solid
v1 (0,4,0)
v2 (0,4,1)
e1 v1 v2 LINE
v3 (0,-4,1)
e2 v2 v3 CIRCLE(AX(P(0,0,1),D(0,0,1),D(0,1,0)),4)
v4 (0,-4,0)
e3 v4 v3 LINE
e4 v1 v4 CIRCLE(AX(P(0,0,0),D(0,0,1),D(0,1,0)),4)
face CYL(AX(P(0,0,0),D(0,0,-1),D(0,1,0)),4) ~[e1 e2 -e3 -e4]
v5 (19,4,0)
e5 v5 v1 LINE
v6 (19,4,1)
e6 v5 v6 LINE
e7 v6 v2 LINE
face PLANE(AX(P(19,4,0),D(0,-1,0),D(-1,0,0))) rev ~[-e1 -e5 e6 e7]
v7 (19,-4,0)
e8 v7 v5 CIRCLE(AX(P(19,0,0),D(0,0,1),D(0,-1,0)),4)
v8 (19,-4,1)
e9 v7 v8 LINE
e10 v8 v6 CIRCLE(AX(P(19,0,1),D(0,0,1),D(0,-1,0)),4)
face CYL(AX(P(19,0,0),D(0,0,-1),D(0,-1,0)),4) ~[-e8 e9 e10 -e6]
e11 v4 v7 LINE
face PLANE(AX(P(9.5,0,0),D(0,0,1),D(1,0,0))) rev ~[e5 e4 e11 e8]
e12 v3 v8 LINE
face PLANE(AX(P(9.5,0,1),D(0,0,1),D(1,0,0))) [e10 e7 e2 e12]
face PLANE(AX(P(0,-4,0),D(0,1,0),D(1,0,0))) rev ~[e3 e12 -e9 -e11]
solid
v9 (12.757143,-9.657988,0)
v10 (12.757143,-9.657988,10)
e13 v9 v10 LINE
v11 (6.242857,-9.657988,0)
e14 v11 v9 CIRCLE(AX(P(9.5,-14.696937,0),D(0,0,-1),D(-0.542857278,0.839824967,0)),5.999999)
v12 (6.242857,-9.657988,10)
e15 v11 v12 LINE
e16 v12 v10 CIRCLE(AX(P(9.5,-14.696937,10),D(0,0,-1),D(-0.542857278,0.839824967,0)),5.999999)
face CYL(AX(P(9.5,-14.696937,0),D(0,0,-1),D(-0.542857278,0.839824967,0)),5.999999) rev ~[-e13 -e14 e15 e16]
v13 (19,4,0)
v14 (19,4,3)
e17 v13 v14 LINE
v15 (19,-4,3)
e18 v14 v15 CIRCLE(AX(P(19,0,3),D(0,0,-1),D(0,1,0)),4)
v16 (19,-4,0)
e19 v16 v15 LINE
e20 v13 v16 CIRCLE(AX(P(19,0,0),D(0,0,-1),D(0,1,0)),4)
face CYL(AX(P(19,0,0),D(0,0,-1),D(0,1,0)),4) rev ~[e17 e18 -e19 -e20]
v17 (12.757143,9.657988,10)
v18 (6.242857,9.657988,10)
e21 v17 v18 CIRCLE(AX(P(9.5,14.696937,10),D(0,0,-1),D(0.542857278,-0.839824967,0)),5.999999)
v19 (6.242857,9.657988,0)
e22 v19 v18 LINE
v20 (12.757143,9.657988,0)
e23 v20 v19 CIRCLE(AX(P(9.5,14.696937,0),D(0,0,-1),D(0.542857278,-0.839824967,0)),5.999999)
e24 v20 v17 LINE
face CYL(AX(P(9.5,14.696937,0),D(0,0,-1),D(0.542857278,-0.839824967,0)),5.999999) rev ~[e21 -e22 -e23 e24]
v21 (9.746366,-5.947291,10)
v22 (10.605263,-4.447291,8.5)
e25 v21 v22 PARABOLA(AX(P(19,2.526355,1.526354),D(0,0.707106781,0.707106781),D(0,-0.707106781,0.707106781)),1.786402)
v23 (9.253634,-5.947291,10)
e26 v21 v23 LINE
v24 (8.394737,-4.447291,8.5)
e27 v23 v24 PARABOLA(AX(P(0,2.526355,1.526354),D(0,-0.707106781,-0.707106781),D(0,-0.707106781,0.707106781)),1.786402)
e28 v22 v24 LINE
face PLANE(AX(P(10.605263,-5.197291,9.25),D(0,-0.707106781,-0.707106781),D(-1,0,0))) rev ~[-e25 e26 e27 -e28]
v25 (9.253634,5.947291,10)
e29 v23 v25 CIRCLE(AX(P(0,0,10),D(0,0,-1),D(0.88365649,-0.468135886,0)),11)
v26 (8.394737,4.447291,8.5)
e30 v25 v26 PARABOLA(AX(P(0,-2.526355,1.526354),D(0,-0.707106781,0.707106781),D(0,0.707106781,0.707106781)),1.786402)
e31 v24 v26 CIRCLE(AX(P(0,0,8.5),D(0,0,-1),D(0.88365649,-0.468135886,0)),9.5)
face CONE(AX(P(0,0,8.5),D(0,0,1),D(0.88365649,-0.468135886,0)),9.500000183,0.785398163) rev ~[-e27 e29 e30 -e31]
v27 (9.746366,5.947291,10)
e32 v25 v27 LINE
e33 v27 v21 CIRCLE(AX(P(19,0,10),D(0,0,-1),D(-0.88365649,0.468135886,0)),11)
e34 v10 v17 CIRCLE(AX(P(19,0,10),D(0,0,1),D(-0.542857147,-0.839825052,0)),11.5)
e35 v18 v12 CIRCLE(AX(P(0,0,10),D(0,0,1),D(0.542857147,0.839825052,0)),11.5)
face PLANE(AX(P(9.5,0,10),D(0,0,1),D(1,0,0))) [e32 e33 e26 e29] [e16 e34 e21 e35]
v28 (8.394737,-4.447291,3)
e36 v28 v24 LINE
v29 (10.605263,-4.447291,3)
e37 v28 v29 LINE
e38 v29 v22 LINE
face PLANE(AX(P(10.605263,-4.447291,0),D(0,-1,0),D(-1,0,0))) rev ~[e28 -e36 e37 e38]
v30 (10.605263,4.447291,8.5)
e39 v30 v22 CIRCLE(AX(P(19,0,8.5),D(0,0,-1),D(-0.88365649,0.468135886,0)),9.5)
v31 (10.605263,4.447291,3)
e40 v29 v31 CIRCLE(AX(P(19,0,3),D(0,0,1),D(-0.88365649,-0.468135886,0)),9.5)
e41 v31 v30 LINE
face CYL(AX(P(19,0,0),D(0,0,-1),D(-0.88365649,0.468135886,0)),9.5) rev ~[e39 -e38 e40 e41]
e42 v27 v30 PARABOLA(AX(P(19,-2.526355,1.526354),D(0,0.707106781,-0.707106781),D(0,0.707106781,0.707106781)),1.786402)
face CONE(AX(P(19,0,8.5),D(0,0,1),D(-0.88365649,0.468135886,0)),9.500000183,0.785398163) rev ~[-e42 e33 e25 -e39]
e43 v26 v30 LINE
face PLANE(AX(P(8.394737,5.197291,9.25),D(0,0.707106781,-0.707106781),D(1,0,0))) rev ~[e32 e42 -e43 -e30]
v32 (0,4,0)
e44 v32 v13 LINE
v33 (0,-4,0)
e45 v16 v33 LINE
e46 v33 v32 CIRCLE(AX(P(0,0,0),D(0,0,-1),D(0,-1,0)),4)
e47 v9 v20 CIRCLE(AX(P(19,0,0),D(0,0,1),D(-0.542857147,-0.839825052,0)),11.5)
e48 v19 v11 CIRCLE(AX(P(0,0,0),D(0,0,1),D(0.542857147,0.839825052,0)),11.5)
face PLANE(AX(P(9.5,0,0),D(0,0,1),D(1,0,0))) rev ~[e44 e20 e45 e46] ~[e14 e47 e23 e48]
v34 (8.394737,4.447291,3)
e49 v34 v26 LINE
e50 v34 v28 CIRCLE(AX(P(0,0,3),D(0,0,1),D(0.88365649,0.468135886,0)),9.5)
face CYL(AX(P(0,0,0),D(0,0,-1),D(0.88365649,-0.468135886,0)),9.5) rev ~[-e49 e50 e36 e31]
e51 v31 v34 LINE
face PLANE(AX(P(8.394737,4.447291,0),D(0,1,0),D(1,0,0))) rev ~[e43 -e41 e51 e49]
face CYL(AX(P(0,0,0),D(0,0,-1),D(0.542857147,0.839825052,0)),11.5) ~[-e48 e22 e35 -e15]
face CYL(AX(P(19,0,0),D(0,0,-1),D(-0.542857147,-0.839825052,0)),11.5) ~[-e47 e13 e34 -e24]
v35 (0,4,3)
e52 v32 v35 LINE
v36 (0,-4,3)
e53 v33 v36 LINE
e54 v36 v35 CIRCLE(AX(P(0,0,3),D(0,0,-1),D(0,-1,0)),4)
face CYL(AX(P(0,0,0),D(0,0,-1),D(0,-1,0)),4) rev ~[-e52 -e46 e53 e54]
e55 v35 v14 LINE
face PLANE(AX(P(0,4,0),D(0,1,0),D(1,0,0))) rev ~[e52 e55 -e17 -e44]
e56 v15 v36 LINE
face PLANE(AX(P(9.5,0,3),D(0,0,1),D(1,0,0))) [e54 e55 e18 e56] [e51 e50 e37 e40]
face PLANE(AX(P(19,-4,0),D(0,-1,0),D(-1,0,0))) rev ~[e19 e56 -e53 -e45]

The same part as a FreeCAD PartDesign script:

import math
import FreeCAD as App
import Part
import Sketcher
from FreeCAD import Vector


def edges_at(feature, points):
    """Names of the edges that pass closest to the given points."""
    edges = feature.Shape.Edges
    near = lambda p: min(range(len(edges)), key=lambda i: edges[i].distToShape(Part.Vertex(*p))[0])
    return sorted({f"Edge{near(p) + 1}" for p in points})

doc = App.newDocument("Part")
body = doc.addObject("PartDesign::Body", "Body")

sketch1 = body.newObject("Sketcher::SketchObject", "Sketch")
sketch1.AttachmentSupport = (doc.getObject("XY_Plane"), [""])
sketch1.MapMode = "FlatFace"
sketch1.addGeometry(Part.LineSegment(Vector(19, 4, 0), Vector(0, 4, 0)), False)
sketch1.addGeometry(Part.ArcOfCircle(Part.Circle(Vector(0, 0, 0), Vector(0, 0, 1), 4), math.radians(90), math.radians(270)), False)
sketch1.addGeometry(Part.LineSegment(Vector(0, -4, 0), Vector(19, -4, 0)), False)
sketch1.addGeometry(Part.ArcOfCircle(Part.Circle(Vector(19, 0, 0), Vector(0, 0, 1), 4), math.radians(-90), math.radians(90)), False)
sketch1.addConstraint(Sketcher.Constraint("Tangent", 0, 2, 1, 1))
sketch1.addConstraint(Sketcher.Constraint("Tangent", 1, 2, 2, 1))
sketch1.addConstraint(Sketcher.Constraint("Tangent", 2, 2, 3, 1))
sketch1.addConstraint(Sketcher.Constraint("Tangent", 3, 2, 0, 1))
sketch1.addConstraint(Sketcher.Constraint("Horizontal", 0))
sketch1.addConstraint(Sketcher.Constraint("Horizontal", 2))
sketch1.addConstraint(Sketcher.Constraint("Coincident", 1, 3, -1, 1))
sketch1.addConstraint(Sketcher.Constraint("Radius", 1, 4.0))
sketch1.addConstraint(Sketcher.Constraint("DistanceX", 0, 2, 0, 1, 19.0))
pad1 = body.newObject("PartDesign::Pad", "Pad")
pad1.Profile = sketch1
pad1.Length = 1
body2 = doc.addObject("PartDesign::Body", "Body001")

sketch2 = body2.newObject("Sketcher::SketchObject", "Sketch001")
sketch2.AttachmentSupport = (doc.getObject("XY_Plane001"), [""])
sketch2.MapMode = "FlatFace"
sketch2.addGeometry(Part.LineSegment(Vector(10.605263, 4.447291, 0), Vector(8.394737, 4.447291, 0)), False)
sketch2.addGeometry(Part.ArcOfCircle(Part.Circle(Vector(0, 0, 0), Vector(0, 0, 1), 9.5), math.radians(27.913361), math.radians(332.086639)), False)
sketch2.addGeometry(Part.LineSegment(Vector(8.394737, -4.447291, 0), Vector(10.605263, -4.447291, 0)), False)
sketch2.addGeometry(Part.ArcOfCircle(Part.Circle(Vector(19, 0, 0), Vector(0, 0, 1), 9.5), math.radians(-152.086639), math.radians(152.086639)), False)
sketch2.addGeometry(Part.LineSegment(Vector(19, -4, 0), Vector(0, -4, 0)), False)
sketch2.addGeometry(Part.ArcOfCircle(Part.Circle(Vector(0, 0, 0), Vector(0, 0, 1), 4), math.radians(90), math.radians(270)), False)
sketch2.addGeometry(Part.LineSegment(Vector(0, 4, 0), Vector(19, 4, 0)), False)
sketch2.addGeometry(Part.ArcOfCircle(Part.Circle(Vector(19, 0, 0), Vector(0, 0, 1), 4), math.radians(-90), math.radians(90)), False)
sketch2.addConstraint(Sketcher.Constraint("Coincident", 0, 2, 1, 1))
sketch2.addConstraint(Sketcher.Constraint("Coincident", 1, 2, 2, 1))
sketch2.addConstraint(Sketcher.Constraint("Coincident", 2, 2, 3, 1))
sketch2.addConstraint(Sketcher.Constraint("Coincident", 3, 2, 0, 1))
sketch2.addConstraint(Sketcher.Constraint("Tangent", 4, 2, 5, 2))
sketch2.addConstraint(Sketcher.Constraint("Tangent", 5, 1, 6, 1))
sketch2.addConstraint(Sketcher.Constraint("Tangent", 6, 2, 7, 2))
sketch2.addConstraint(Sketcher.Constraint("Tangent", 7, 1, 4, 1))
sketch2.addConstraint(Sketcher.Constraint("Horizontal", 0))
sketch2.addConstraint(Sketcher.Constraint("Horizontal", 2))
sketch2.addConstraint(Sketcher.Constraint("Horizontal", 4))
sketch2.addConstraint(Sketcher.Constraint("Horizontal", 6))
sketch2.addConstraint(Sketcher.Constraint("Coincident", 1, 3, -1, 1))
sketch2.addConstraint(Sketcher.Constraint("Coincident", 5, 3, -1, 1))
sketch2.addConstraint(Sketcher.Constraint("Coincident", 7, 3, 3, 3))
sketch2.addConstraint(Sketcher.Constraint("Equal", 1, 3))
sketch2.addConstraint(Sketcher.Constraint("Vertical", 0, 2, 1, 2))
sketch2.addConstraint(Sketcher.Constraint("Radius", 5, 4.0))
sketch2.addConstraint(Sketcher.Constraint("Radius", 1, 9.5))
sketch2.addConstraint(Sketcher.Constraint("DistanceX", 4, 2, 4, 1, 19.0))
sketch2.addConstraint(Sketcher.Constraint("DistanceX", 0, 2, 0, 1, 2.210526))
pad2 = body2.newObject("PartDesign::Pad", "Pad001")
pad2.Profile = sketch2
pad2.Length = 3

sketch3 = body2.newObject("Sketcher::SketchObject", "Sketch002")
sketch3.AttachmentSupport = (doc.getObject("XY_Plane001"), [""])
sketch3.MapMode = "FlatFace"
sketch3.addGeometry(Part.ArcOfCircle(Part.Circle(Vector(9.5, 14.696937, 0), Vector(0, 0, 1), 5.999999), math.radians(-122.878359), math.radians(-57.121641)), False)
sketch3.addGeometry(Part.ArcOfCircle(Part.Circle(Vector(0, 0, 0), Vector(0, 0, 1), 11.5), math.radians(57.12165), math.radians(302.87835)), False)
sketch3.addGeometry(Part.ArcOfCircle(Part.Circle(Vector(9.5, -14.696937, 0), Vector(0, 0, 1), 5.999999), math.radians(57.121641), math.radians(122.878359)), False)
sketch3.addGeometry(Part.ArcOfCircle(Part.Circle(Vector(19, 0, 0), Vector(0, 0, 1), 11.5), math.radians(-122.87835), math.radians(122.87835)), False)
sketch3.addGeometry(Part.LineSegment(Vector(10.605263, -4.447291, 0), Vector(8.394737, -4.447291, 0)), False)
sketch3.addGeometry(Part.ArcOfCircle(Part.Circle(Vector(0, 0, 0), Vector(0, 0, 1), 9.5), math.radians(27.913361), math.radians(332.086639)), False)
sketch3.addGeometry(Part.LineSegment(Vector(8.394737, 4.447291, 0), Vector(10.605263, 4.447291, 0)), False)
sketch3.addGeometry(Part.ArcOfCircle(Part.Circle(Vector(19, 0, 0), Vector(0, 0, 1), 9.5), math.radians(-152.086639), math.radians(152.086639)), False)
sketch3.addConstraint(Sketcher.Constraint("Tangent", 0, 1, 1, 1))
sketch3.addConstraint(Sketcher.Constraint("Tangent", 1, 2, 2, 2))
sketch3.addConstraint(Sketcher.Constraint("Tangent", 2, 1, 3, 1))
sketch3.addConstraint(Sketcher.Constraint("Tangent", 3, 2, 0, 2))
sketch3.addConstraint(Sketcher.Constraint("Coincident", 4, 2, 5, 2))
sketch3.addConstraint(Sketcher.Constraint("Coincident", 5, 1, 6, 1))
sketch3.addConstraint(Sketcher.Constraint("Coincident", 6, 2, 7, 2))
sketch3.addConstraint(Sketcher.Constraint("Coincident", 7, 1, 4, 1))
sketch3.addConstraint(Sketcher.Constraint("Horizontal", 4))
sketch3.addConstraint(Sketcher.Constraint("Horizontal", 6))
sketch3.addConstraint(Sketcher.Constraint("Coincident", 1, 3, -1, 1))
sketch3.addConstraint(Sketcher.Constraint("Coincident", 5, 3, -1, 1))
sketch3.addConstraint(Sketcher.Constraint("Coincident", 7, 3, 3, 3))
sketch3.addConstraint(Sketcher.Constraint("Equal", 0, 2))
sketch3.addConstraint(Sketcher.Constraint("Equal", 1, 3))
sketch3.addConstraint(Sketcher.Constraint("Equal", 5, 7))
sketch3.addConstraint(Sketcher.Constraint("Symmetric", 6, 2, 7, 1, -1))
sketch3.addConstraint(Sketcher.Constraint("Radius", 0, 5.999999))
sketch3.addConstraint(Sketcher.Constraint("Radius", 1, 11.5))
sketch3.addConstraint(Sketcher.Constraint("Radius", 5, 9.5))
sketch3.addConstraint(Sketcher.Constraint("DistanceX", -1, 1, 3, 3, 19.0))
sketch3.addConstraint(Sketcher.Constraint("DistanceX", 4, 2, 4, 1, 2.210526))
pad3 = body2.newObject("PartDesign::Pad", "Pad002")
pad3.Profile = sketch3
pad3.Length = 10
doc.recompute()

chamfer = body2.newObject("PartDesign::Chamfer", "Chamfer")
chamfer.Base = (pad3, edges_at(pad3, [
    (-9.5, 0, 10),
    (28.5, 0, 10),
    (9.5, 4.447, 10),
    (9.5, -4.447, 10),
]))
chamfer.Size = 1.5

doc.recompute()
